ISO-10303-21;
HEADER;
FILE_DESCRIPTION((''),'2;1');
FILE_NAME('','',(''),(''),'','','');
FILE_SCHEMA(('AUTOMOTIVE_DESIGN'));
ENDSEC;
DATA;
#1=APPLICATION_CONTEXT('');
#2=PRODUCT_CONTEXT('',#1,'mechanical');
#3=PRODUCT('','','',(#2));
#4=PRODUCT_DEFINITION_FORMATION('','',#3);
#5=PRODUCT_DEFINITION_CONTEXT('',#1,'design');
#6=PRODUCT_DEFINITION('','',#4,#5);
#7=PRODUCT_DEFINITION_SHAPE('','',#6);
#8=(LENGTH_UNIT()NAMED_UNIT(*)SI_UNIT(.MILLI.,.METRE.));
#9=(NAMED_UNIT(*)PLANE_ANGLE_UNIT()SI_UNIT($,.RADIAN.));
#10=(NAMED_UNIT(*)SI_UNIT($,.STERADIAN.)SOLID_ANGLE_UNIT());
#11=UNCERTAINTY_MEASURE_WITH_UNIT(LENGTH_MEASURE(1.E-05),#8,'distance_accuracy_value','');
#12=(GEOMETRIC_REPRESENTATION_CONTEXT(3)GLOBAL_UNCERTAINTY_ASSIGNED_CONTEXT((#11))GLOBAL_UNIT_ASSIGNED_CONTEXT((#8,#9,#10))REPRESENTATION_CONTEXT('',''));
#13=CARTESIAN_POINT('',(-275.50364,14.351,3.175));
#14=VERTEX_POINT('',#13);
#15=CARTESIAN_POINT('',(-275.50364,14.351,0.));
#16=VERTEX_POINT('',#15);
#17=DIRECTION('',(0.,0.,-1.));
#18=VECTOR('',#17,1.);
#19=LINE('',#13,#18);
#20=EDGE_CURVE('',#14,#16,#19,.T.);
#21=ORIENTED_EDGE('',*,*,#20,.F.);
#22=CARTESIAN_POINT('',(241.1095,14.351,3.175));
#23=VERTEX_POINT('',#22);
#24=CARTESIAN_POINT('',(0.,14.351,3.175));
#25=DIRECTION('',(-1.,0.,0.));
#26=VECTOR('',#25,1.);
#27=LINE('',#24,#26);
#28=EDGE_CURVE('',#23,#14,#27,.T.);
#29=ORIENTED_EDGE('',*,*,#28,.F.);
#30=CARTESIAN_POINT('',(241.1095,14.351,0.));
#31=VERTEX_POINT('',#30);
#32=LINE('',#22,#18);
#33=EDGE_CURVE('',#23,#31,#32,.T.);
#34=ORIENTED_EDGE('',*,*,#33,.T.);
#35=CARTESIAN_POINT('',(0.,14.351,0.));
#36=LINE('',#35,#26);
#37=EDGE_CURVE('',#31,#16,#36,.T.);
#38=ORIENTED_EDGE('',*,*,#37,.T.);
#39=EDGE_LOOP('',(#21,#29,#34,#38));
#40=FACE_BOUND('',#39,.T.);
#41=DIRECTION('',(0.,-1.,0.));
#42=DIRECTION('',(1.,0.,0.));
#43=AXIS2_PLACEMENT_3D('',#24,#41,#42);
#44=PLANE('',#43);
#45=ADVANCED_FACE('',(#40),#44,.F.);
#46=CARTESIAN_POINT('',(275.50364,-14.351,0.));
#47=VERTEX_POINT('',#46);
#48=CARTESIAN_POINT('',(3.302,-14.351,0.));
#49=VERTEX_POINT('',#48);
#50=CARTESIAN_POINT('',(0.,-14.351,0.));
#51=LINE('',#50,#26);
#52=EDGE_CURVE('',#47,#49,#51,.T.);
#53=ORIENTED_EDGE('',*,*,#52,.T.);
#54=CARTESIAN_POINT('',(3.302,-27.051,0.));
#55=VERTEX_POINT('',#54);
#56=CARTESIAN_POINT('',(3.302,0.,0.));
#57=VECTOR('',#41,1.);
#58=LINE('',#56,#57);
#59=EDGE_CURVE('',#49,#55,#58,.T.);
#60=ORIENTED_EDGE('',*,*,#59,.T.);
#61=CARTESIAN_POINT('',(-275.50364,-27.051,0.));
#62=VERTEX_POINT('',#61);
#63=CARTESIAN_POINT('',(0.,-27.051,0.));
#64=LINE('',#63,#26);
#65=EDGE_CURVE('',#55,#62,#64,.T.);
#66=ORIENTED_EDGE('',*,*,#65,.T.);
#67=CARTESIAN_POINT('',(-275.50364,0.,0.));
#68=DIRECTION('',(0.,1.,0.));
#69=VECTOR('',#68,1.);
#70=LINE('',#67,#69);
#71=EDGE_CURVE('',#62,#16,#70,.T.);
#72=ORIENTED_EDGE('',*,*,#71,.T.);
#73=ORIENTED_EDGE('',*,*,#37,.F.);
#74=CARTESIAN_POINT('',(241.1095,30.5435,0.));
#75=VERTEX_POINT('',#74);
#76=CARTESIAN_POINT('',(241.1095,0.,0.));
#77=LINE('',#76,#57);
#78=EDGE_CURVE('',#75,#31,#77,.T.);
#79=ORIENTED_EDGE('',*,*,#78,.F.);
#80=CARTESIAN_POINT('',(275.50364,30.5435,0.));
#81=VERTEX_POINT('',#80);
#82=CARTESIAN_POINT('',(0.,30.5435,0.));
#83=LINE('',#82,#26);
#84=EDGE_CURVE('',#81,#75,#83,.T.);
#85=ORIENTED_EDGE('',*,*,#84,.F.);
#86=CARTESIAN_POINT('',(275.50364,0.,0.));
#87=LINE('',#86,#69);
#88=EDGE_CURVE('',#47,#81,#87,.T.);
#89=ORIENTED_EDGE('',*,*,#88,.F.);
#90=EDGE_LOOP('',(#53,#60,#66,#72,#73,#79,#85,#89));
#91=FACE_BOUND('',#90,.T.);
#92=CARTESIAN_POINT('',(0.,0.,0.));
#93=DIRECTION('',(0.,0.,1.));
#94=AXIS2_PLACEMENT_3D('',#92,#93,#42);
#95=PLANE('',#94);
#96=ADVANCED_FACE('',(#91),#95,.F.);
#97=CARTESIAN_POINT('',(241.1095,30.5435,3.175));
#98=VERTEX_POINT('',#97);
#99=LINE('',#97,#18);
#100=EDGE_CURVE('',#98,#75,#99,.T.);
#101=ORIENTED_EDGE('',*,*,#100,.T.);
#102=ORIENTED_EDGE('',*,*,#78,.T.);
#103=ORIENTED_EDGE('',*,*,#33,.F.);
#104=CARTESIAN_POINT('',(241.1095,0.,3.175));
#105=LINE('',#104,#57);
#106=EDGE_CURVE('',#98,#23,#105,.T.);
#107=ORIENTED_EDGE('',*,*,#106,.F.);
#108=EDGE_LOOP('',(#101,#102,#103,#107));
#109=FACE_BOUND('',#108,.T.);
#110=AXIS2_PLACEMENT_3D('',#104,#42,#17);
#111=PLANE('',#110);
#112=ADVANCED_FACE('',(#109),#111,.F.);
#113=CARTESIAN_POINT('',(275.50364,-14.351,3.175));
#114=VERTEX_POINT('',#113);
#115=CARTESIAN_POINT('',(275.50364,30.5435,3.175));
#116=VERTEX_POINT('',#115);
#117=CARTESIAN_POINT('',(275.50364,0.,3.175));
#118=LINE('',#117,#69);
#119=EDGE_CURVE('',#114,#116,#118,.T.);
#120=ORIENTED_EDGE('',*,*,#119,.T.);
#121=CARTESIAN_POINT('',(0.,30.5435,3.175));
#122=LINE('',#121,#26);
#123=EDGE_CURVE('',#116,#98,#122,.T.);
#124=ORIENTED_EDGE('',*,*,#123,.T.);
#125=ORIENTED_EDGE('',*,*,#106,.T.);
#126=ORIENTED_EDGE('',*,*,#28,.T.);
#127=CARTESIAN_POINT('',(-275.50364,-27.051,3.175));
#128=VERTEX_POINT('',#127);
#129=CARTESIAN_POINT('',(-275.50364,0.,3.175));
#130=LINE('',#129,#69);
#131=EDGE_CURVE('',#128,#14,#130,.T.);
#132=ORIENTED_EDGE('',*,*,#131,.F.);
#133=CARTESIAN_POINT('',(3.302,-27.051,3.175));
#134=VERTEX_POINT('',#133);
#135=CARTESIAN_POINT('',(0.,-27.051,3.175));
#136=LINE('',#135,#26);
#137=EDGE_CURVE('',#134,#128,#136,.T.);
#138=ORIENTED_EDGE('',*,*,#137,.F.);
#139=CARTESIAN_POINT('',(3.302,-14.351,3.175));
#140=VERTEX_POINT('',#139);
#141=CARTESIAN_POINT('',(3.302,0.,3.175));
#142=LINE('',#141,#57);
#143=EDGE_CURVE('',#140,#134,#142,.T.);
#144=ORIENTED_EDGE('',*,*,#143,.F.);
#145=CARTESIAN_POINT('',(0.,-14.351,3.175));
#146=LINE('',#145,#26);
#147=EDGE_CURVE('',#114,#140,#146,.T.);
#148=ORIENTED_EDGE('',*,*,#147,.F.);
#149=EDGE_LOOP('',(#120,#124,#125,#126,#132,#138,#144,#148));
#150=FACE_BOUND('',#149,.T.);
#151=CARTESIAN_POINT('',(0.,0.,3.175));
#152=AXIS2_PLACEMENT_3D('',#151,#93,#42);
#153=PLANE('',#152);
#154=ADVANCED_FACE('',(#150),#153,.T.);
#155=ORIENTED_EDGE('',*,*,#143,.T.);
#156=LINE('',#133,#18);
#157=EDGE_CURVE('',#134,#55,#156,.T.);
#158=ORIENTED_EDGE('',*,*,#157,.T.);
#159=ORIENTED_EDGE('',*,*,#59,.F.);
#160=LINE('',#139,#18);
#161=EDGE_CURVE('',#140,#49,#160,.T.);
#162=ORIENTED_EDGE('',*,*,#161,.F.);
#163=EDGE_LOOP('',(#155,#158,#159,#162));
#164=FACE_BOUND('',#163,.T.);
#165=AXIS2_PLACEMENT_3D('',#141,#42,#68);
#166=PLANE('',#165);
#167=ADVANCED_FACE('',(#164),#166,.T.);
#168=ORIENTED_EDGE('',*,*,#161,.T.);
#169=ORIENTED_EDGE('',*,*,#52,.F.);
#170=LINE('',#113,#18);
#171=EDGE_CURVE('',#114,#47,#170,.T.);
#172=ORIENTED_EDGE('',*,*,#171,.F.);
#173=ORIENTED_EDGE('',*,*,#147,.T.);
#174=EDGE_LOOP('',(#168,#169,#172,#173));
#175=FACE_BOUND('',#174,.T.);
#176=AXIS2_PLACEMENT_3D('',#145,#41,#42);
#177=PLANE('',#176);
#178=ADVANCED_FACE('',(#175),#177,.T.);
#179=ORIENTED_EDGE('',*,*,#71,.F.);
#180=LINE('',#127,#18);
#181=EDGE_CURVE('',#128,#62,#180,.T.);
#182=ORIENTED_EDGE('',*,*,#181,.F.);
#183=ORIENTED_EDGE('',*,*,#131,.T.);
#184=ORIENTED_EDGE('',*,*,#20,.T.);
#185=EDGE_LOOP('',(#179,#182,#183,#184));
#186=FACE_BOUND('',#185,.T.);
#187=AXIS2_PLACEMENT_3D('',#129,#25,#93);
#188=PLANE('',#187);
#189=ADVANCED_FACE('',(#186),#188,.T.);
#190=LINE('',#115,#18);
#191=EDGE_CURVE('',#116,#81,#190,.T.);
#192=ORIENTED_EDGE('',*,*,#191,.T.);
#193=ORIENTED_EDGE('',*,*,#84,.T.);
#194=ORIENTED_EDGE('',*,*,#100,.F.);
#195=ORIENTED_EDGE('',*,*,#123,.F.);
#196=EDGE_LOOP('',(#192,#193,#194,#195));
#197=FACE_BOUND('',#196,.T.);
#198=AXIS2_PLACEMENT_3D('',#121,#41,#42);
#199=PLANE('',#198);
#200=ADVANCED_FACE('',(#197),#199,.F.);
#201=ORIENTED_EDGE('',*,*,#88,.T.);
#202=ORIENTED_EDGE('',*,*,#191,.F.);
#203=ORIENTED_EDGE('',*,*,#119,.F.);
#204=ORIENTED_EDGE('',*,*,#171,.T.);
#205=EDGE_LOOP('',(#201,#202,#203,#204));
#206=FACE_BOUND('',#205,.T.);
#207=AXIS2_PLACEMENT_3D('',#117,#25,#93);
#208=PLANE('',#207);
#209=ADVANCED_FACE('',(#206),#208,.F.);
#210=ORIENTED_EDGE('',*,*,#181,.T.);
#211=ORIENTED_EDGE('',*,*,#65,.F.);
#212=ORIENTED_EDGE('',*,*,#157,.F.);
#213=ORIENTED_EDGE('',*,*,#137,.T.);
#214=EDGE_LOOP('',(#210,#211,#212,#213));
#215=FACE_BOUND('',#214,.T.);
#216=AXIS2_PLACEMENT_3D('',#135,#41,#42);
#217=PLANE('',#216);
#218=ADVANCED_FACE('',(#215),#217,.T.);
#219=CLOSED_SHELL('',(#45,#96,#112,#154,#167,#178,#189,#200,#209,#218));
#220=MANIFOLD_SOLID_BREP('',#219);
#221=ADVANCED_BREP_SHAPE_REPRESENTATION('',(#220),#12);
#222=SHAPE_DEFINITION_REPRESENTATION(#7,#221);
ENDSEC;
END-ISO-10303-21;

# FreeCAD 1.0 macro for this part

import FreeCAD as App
import Part
import Sketcher
from FreeCAD import Vector
Q = App.Units.Quantity


def add_polygon(sketch, points):
    """Adds a closed chain of lines whose ends are joined by coincident constraints."""
    first, n = sketch.GeometryCount, len(points)
    for a, b in zip(points, points[1:] + points[:1]):
        sketch.addGeometry(Part.LineSegment(App.Vector(*a, 0), App.Vector(*b, 0)), False)
    for i in range(n):
        sketch.addConstraint(Sketcher.Constraint("Coincident", first + i, 2, first + (i + 1) % n, 1))

doc = App.newDocument("Part")
body = doc.addObject("PartDesign::Body", "Body")

# Sketch on XY plane
sketch1 = body.newObject("Sketcher::SketchObject", "Sketch")
sketch1.AttachmentSupport = (doc.getObject("XY_Plane"), [""])
sketch1.MapMode = "FlatFace"
add_polygon(sketch1, [(275.50364, 30.5435), (241.1095, 30.5435), (241.1095, 14.351), (-275.50364, 14.351), (-275.50364, -27.051), (3.302, -27.051), (3.302, -14.351), (275.50364, -14.351)])  # lines 0-7
sketch1.addConstraint([
    Sketcher.Constraint("Horizontal", 0),
    Sketcher.Constraint("Vertical", 1),
    Sketcher.Constraint("Horizontal", 2),
    Sketcher.Constraint("Vertical", 3),
    Sketcher.Constraint("Horizontal", 4),
    Sketcher.Constraint("Vertical", 5),
    Sketcher.Constraint("Horizontal", 6),
    Sketcher.Constraint("Vertical", 7),
    Sketcher.Constraint("Symmetric", 2, 2, 6, 2, -1, 1),
    Sketcher.Constraint("DistanceY", 5, 1, 5, 2, Q("0.5 in")),
    Sketcher.Constraint("DistanceY", 3, 2, 3, 1, Q("1.63 in")),
    Sketcher.Constraint("DistanceX", -1, 1, 4, 2, Q("0.13 in")),
    Sketcher.Constraint("DistanceX", 0, 2, 0, 1, Q("1.3541 in")),
    Sketcher.Constraint("DistanceX", 2, 2, 2, 1, Q("20.3391 in")),
    Sketcher.Constraint("DistanceY", 1, 2, 1, 1, Q("0.6375 in")),
])
pad1 = body.newObject("PartDesign::Pad", "Pad")
pad1.Profile = sketch1
pad1.Length = Q("0.125 in")

doc.recompute()
